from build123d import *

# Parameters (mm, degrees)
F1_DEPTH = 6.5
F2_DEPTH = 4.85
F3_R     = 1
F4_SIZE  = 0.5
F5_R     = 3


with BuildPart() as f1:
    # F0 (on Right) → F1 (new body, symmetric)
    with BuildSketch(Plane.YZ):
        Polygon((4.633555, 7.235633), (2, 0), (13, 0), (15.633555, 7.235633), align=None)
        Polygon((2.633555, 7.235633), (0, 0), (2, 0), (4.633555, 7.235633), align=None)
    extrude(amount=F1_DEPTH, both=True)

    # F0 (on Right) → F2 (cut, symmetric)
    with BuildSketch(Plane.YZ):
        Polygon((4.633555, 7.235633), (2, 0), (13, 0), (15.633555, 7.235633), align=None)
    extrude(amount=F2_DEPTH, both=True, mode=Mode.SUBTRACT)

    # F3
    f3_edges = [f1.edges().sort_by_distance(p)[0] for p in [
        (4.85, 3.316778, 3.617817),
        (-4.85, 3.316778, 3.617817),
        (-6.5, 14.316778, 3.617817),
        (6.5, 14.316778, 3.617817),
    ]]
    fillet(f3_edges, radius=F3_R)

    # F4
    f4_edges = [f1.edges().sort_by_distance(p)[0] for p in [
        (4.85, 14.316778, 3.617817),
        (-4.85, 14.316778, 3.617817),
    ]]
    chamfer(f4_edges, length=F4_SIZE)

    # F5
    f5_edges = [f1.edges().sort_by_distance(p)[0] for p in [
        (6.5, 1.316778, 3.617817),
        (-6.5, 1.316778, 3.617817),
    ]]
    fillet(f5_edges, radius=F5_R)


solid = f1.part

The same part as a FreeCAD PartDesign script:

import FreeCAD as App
import Part
import Sketcher

V = App.Vector
Q = App.Units.Quantity


def edges_at(feature, points):
    """Names of the edges that pass closest to the given points."""
    edges = feature.Shape.Edges
    near = lambda p: min(range(len(edges)), key=lambda i: edges[i].distToShape(Part.Vertex(*p))[0])
    return sorted({f"Edge{near(p) + 1}" for p in points})

doc = App.newDocument("Part")
params = doc.addObject("Spreadsheet::Sheet", "Params")
for row, (alias, value) in enumerate([
    ("sketch1_width", "13 mm"),
    ("sketch1_length", "7.7 mm"),
    ("pad1_length", "13 mm"),
    ("sketch2_width", "11 mm"),
    ("sketch2_length", "7.7 mm"),
    ("pocket1_length", "9.7 mm"),
    ("fillet_radius", "1 mm"),
    ("chamfer_size", "0.5 mm"),
    ("fillet2_radius", "3 mm"),
], start=1):
    params.set(f"A{row}", alias)
    params.set(f"B{row}", "=" + value)
    params.setAlias(f"B{row}", alias)

body = doc.addObject("PartDesign::Body", "Body")

# Sketch on YZ plane
sketch1 = body.newObject("Sketcher::SketchObject", "Sketch")
sketch1.AttachmentSupport = (doc.getObject("YZ_Plane"), [""])
sketch1.MapMode = "FlatFace"
sketch1.addGeometry([
    Part.LineSegment(V(13, 0, 0), V(16, 7, 0)),
    Part.LineSegment(V(16, 7, 0), V(3, 7, 0)),
    Part.LineSegment(V(3, 7, 0), V(0, 0, 0)),
    Part.LineSegment(V(0, 0, 0), V(13, 0, 0)),
], False)
sketch1.addConstraint([
    Sketcher.Constraint("Coincident", 0, 2, 1, 1),
    Sketcher.Constraint("Coincident", 1, 2, 2, 1),
    Sketcher.Constraint("Coincident", 2, 2, 3, 1),
    Sketcher.Constraint("Coincident", 3, 2, 0, 1),
    Sketcher.Constraint("Horizontal", 1),
    Sketcher.Constraint("Horizontal", 3),
    Sketcher.Constraint("Coincident", 2, 2, -1, 1),
    Sketcher.Constraint("Parallel", 0, 2),
    Sketcher.Constraint("DistanceX", 1, 2, 1, 1, 13.0),
    Sketcher.Constraint("Angle", 0, Q("70 deg")),
    Sketcher.Constraint("Distance", 0, 7.7),
])
sketch1.setExpression("Constraints[8]", "Params.sketch1_width")
sketch1.setExpression("Constraints[10]", "Params.sketch1_length")
pad1 = body.newObject("PartDesign::Pad", "Pad")
pad1.Profile = sketch1
pad1.setExpression("Length", "Params.pad1_length")
pad1.Midplane = True

# Sketch on YZ plane
sketch2 = body.newObject("Sketcher::SketchObject", "Sketch001")
sketch2.AttachmentSupport = (doc.getObject("YZ_Plane"), [""])
sketch2.MapMode = "FlatFace"
sketch2.addGeometry([
    Part.LineSegment(V(5, 7, 0), V(2, 0, 0)),
    Part.LineSegment(V(2, 0, 0), V(13, 0, 0)),
    Part.LineSegment(V(13, 0, 0), V(16, 7, 0)),
    Part.LineSegment(V(16, 7, 0), V(5, 7, 0)),
], False)
sketch2.addConstraint([
    Sketcher.Constraint("Coincident", 0, 2, 1, 1),
    Sketcher.Constraint("Coincident", 1, 2, 2, 1),
    Sketcher.Constraint("Coincident", 2, 2, 3, 1),
    Sketcher.Constraint("Coincident", 3, 2, 0, 1),
    Sketcher.Constraint("Horizontal", 1),
    Sketcher.Constraint("Horizontal", 3),
    Sketcher.Constraint("PointOnObject", 0, 2, -1),
    Sketcher.Constraint("Parallel", 0, 2),
    Sketcher.Constraint("DistanceX", 1, 1, 1, 2, 11.0),
    Sketcher.Constraint("Angle", 0, Q("-110 deg")),
    Sketcher.Constraint("DistanceX", -1, 1, 0, 2, 2.0),
    Sketcher.Constraint("Distance", 0, 7.7),
])
sketch2.setExpression("Constraints[8]", "Params.sketch2_width")
sketch2.setExpression("Constraints[11]", "Params.sketch2_length")
pocket1 = body.newObject("PartDesign::Pocket", "Pocket")
pocket1.Profile = sketch2
pocket1.setExpression("Length", "Params.pocket1_length")
pocket1.Midplane = True
doc.recompute()

fillet = body.newObject("PartDesign::Fillet", "Fillet")
fillet.Base = (pocket1, edges_at(pocket1, [
    (4.85, 3.317, 3.618),
    (-4.85, 3.317, 3.618),
    (-6.5, 14.317, 3.618),
    (6.5, 14.317, 3.618),
]))
fillet.setExpression("Radius", "Params.fillet_radius")
doc.recompute()

chamfer = body.newObject("PartDesign::Chamfer", "Chamfer")
chamfer.Base = (fillet, edges_at(fillet, [(4.85, 14.317, 3.618), (-4.85, 14.317, 3.618)]))
chamfer.setExpression("Size", "Params.chamfer_size")
doc.recompute()

fillet2 = body.newObject("PartDesign::Fillet", "Fillet001")
fillet2.Base = (chamfer, edges_at(chamfer, [(6.5, 1.317, 3.618), (-6.5, 1.317, 3.618)]))
fillet2.setExpression("Radius", "Params.fillet2_radius")

doc.recompute()
